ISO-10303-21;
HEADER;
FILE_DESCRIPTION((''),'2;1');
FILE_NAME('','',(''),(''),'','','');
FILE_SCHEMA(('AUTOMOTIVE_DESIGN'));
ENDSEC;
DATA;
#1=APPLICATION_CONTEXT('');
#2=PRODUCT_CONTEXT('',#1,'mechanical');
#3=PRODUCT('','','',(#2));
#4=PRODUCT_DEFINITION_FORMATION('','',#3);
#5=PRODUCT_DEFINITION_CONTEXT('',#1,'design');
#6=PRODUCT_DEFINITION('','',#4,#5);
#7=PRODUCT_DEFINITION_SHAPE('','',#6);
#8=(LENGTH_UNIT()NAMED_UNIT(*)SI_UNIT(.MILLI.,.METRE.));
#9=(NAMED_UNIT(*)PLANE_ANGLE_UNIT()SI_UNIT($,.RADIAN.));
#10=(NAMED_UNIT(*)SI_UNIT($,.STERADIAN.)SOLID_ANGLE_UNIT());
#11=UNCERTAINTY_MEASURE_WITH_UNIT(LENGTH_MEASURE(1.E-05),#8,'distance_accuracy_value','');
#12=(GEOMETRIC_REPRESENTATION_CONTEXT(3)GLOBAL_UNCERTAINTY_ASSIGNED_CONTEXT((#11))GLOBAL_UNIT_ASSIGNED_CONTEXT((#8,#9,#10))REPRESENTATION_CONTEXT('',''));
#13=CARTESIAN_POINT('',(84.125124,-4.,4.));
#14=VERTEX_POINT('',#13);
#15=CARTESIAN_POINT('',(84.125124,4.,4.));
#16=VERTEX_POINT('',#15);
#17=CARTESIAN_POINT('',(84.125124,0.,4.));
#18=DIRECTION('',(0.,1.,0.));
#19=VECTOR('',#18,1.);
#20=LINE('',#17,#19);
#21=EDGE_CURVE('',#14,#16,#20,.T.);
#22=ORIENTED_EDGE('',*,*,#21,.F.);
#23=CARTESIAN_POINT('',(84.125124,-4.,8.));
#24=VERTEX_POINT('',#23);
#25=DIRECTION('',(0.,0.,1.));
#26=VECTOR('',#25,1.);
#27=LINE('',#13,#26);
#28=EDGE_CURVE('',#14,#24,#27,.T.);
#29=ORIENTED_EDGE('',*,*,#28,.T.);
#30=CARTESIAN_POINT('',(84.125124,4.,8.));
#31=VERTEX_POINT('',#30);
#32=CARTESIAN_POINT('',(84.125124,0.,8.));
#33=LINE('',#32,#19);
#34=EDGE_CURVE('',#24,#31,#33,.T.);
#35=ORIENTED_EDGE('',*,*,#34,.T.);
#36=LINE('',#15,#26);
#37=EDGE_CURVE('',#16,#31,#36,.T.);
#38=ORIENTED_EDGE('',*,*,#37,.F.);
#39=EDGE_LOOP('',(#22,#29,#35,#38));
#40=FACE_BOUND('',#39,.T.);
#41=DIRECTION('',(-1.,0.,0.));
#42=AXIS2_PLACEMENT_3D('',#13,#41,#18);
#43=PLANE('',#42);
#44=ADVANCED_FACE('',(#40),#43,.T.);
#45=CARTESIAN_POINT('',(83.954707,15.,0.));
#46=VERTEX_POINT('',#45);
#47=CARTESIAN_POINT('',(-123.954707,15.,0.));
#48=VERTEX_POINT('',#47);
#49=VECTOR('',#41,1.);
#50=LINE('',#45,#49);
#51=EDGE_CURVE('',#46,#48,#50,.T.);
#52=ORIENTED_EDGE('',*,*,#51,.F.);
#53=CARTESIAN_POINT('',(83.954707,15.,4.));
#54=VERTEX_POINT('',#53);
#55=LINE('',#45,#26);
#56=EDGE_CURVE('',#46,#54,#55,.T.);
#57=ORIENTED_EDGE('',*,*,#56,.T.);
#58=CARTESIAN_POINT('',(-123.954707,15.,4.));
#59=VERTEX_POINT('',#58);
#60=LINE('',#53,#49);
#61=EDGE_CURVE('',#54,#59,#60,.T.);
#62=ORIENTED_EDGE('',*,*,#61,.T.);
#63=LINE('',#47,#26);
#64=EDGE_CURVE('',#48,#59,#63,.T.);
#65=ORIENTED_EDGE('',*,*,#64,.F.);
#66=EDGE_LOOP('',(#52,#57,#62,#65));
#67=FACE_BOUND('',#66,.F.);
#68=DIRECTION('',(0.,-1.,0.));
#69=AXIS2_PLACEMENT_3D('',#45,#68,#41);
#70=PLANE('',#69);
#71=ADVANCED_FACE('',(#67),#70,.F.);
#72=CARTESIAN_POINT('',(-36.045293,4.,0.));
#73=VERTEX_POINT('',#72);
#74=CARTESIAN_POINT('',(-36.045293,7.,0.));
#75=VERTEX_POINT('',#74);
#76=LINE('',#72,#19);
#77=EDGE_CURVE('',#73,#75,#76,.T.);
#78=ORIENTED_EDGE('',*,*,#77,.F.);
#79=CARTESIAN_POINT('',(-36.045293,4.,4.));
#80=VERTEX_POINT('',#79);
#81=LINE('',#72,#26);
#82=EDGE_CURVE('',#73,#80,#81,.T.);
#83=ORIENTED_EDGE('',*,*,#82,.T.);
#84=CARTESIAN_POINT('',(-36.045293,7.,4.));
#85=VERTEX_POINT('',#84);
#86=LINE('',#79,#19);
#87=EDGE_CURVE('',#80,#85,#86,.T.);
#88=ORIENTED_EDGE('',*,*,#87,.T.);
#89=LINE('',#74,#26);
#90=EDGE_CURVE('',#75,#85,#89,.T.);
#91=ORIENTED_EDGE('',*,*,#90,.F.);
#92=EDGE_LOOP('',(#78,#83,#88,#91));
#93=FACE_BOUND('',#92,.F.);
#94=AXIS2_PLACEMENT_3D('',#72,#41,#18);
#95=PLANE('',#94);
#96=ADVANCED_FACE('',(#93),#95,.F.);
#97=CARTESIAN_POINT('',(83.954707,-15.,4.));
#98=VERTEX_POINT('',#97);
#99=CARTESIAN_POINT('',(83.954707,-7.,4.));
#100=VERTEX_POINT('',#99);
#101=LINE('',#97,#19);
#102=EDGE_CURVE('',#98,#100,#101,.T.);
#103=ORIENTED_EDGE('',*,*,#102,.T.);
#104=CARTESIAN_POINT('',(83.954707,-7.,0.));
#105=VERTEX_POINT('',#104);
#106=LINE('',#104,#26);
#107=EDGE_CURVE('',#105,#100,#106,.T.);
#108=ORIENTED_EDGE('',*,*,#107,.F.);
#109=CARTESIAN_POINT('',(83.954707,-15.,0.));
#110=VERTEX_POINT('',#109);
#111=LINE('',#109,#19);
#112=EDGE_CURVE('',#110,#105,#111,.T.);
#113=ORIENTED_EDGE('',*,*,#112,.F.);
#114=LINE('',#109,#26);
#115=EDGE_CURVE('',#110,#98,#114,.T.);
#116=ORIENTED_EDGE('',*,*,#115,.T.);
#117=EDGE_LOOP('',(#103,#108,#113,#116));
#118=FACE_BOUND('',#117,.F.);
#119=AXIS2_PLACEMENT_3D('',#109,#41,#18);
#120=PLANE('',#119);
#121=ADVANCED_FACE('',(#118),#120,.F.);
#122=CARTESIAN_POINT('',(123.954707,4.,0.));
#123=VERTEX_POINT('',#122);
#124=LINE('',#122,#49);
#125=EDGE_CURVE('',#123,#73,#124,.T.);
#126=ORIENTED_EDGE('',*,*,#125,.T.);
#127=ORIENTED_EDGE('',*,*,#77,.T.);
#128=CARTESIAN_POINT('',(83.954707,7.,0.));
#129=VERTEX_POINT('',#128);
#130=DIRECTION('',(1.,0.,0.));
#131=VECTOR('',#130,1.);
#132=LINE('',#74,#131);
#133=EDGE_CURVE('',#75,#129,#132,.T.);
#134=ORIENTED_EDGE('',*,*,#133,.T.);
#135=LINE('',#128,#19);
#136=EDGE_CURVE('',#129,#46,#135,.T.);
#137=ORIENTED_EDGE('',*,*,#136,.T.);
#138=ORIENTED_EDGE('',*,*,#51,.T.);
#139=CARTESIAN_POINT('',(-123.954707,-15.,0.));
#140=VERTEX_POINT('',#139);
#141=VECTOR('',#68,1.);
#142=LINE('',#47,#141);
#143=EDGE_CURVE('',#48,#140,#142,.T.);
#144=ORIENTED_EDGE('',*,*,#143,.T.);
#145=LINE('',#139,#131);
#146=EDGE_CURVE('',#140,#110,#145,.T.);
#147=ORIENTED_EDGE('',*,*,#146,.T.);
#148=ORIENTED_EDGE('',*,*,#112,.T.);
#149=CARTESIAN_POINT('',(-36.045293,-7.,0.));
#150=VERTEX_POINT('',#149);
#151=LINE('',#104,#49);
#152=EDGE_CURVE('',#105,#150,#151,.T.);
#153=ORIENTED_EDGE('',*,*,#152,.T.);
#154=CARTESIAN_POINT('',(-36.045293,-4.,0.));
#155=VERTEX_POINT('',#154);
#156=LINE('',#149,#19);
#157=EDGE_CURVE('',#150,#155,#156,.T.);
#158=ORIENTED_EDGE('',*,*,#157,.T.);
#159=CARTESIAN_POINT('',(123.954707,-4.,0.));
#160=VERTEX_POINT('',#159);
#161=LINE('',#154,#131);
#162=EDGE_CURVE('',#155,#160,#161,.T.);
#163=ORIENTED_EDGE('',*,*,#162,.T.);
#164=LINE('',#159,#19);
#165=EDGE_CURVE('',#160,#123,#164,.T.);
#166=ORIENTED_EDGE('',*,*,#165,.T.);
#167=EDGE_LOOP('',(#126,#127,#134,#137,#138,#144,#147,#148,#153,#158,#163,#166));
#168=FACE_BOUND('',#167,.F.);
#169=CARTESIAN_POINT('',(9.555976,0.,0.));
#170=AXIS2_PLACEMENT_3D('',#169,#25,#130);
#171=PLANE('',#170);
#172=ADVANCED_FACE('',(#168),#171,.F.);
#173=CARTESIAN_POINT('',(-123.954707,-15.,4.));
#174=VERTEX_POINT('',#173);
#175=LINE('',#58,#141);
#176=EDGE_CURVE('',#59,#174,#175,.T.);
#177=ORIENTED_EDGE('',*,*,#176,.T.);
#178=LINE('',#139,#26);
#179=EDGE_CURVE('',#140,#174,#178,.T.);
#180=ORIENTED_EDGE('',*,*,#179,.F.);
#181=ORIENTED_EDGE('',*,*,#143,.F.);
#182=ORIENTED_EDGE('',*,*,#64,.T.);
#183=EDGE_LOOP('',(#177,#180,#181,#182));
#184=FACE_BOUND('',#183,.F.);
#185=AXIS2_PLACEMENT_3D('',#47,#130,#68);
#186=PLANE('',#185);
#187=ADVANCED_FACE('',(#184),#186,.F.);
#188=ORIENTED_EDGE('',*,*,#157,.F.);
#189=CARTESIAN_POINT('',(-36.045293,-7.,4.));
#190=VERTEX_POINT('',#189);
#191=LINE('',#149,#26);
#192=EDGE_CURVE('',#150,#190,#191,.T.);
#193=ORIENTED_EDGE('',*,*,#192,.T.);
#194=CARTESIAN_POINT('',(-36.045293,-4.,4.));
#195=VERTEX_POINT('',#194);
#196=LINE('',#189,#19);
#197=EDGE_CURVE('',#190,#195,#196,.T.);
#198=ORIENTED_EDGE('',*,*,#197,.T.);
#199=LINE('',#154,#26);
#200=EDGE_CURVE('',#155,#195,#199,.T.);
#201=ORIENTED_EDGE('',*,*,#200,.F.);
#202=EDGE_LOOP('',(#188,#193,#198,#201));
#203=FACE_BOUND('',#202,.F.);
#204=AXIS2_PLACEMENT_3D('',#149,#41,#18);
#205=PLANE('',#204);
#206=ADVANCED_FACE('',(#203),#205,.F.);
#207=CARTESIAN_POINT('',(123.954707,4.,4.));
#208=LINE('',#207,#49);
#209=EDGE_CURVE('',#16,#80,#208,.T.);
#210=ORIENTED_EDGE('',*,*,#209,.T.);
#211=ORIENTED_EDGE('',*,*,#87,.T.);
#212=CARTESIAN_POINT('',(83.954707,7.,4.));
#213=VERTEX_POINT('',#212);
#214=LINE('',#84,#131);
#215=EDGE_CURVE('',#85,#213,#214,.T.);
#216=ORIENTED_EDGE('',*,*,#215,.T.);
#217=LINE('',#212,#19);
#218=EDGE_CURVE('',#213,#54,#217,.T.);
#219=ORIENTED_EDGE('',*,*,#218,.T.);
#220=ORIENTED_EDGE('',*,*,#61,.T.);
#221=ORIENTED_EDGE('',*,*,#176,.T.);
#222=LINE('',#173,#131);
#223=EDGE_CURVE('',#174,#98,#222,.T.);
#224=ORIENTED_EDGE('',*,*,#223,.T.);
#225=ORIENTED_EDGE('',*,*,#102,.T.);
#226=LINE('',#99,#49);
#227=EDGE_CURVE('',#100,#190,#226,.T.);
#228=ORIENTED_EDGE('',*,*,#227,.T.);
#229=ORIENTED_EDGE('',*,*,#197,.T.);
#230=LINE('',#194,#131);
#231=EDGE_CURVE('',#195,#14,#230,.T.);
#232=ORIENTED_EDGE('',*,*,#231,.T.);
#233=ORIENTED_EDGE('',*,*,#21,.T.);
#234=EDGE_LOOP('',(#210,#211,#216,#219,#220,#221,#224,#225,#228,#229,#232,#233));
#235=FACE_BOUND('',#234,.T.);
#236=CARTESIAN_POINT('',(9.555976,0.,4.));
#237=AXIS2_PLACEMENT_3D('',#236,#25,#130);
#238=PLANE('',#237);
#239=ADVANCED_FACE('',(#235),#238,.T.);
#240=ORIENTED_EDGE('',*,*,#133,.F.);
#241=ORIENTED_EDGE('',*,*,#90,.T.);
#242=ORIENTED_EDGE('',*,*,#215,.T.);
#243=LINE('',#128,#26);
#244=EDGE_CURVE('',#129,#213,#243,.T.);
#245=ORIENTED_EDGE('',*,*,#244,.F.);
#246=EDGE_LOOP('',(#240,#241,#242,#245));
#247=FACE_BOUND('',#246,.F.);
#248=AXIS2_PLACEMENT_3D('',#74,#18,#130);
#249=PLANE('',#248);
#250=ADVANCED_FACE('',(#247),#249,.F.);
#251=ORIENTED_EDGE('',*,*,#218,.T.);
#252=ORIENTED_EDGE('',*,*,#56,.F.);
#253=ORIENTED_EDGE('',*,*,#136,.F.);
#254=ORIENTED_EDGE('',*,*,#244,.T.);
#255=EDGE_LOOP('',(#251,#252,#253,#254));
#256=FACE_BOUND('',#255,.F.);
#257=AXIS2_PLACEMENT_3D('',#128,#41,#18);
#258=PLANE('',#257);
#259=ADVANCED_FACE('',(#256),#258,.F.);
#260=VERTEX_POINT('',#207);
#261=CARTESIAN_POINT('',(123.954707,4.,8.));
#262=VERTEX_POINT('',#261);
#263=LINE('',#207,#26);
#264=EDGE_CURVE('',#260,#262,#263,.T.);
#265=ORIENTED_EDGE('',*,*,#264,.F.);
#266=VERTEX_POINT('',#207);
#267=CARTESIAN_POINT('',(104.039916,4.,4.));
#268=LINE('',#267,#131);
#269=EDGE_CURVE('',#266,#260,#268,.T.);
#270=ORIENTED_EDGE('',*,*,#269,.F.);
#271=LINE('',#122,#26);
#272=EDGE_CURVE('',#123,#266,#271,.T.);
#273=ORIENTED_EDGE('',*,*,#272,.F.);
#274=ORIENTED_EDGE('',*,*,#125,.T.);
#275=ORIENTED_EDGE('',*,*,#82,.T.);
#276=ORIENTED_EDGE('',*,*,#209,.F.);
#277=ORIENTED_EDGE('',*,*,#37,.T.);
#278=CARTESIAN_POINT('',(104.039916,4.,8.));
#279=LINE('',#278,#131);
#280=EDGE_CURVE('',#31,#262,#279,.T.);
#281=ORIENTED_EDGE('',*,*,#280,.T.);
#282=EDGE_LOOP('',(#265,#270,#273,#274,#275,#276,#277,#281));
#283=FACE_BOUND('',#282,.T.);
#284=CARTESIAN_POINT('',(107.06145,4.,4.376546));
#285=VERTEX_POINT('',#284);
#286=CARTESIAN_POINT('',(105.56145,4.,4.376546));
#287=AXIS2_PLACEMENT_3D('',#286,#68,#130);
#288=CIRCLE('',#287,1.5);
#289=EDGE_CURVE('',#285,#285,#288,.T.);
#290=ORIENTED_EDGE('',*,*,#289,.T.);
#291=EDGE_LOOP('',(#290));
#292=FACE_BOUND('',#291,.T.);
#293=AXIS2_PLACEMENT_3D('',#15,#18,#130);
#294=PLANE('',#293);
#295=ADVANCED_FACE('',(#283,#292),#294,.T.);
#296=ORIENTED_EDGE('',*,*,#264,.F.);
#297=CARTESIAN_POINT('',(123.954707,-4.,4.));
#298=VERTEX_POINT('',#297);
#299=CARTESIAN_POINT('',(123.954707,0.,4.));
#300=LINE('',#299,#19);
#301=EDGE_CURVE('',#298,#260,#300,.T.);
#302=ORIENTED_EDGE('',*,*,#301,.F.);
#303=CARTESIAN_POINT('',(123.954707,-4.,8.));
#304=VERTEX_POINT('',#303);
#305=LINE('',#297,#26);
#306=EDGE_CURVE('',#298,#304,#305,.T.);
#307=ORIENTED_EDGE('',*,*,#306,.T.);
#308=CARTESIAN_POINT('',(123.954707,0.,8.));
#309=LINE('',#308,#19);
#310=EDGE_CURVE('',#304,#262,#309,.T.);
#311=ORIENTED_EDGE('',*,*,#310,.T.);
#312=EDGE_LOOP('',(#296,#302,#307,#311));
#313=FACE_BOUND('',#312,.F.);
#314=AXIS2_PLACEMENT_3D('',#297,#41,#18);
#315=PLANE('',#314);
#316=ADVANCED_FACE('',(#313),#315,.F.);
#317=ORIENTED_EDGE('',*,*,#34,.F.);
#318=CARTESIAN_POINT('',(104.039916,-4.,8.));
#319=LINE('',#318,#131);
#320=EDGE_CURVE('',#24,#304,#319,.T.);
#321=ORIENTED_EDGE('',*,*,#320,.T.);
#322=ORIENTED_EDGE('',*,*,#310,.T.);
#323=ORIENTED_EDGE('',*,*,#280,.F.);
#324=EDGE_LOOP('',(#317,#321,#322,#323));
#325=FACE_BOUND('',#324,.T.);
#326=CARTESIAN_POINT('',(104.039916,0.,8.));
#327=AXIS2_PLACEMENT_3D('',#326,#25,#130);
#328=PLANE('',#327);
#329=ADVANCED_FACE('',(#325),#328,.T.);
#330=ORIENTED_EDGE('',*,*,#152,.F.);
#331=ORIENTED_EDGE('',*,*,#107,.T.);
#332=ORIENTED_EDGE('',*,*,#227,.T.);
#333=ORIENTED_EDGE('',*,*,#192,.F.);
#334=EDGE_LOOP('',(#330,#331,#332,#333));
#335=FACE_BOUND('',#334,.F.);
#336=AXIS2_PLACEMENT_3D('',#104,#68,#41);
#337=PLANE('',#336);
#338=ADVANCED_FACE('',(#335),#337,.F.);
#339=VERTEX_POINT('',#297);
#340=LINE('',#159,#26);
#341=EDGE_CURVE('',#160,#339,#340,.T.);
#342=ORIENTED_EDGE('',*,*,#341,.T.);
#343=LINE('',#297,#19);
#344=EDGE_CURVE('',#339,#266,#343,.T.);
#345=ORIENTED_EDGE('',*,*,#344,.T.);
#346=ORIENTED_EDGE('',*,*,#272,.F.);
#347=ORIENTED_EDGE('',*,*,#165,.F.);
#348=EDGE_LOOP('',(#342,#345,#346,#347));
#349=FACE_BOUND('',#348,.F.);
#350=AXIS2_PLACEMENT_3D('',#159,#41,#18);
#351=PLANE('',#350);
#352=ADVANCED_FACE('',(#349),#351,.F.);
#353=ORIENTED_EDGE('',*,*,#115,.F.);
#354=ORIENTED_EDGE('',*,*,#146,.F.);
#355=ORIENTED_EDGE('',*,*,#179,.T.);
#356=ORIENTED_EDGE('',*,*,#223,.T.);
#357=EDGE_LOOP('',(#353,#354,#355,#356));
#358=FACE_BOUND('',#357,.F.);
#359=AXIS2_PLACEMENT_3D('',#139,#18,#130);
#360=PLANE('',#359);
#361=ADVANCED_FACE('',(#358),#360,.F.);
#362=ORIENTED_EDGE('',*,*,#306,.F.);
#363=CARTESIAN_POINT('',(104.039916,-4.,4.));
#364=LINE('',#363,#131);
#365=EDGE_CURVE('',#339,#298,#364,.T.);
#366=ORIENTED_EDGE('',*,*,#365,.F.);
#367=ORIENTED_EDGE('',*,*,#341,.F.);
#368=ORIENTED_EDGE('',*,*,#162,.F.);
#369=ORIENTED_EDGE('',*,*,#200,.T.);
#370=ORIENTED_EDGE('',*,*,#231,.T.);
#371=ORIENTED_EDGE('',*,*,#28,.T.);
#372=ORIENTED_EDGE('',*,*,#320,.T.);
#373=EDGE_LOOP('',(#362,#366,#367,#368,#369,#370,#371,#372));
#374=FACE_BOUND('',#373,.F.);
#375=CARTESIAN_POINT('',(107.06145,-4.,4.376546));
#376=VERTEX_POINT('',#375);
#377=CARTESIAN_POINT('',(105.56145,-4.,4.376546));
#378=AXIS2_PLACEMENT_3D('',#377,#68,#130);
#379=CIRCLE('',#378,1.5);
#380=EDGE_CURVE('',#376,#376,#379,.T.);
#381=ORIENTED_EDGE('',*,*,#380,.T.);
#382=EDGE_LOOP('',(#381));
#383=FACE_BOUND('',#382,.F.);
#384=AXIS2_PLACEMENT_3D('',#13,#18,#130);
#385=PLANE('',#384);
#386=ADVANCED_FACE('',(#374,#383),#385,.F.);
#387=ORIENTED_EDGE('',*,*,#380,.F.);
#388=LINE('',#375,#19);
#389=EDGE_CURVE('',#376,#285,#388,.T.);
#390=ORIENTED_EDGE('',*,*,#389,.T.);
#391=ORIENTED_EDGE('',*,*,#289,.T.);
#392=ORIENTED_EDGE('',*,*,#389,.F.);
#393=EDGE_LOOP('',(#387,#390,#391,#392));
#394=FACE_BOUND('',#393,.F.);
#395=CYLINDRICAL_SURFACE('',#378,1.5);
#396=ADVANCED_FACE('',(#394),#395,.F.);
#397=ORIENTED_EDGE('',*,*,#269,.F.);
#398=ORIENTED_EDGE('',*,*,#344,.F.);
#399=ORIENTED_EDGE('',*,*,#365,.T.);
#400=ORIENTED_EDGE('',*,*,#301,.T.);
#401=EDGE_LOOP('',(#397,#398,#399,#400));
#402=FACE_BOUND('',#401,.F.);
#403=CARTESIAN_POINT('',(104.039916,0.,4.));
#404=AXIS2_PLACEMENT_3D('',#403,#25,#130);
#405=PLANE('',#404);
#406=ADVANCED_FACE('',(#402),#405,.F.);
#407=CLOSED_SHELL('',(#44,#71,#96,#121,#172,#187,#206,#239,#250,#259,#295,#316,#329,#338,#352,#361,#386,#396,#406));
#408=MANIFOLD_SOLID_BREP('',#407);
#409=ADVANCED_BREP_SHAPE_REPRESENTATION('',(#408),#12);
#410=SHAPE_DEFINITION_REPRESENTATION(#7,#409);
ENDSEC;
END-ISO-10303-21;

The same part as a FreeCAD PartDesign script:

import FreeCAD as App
import Part
import Sketcher
from FreeCAD import Vector
Q = App.Units.Quantity


def add_polygon(sketch, points):
    """Adds a closed chain of lines whose ends are joined by coincident constraints."""
    first, n = sketch.GeometryCount, len(points)
    for a, b in zip(points, points[1:] + points[:1]):
        sketch.addGeometry(Part.LineSegment(App.Vector(*a, 0), App.Vector(*b, 0)), False)
    for i in range(n):
        sketch.addConstraint(Sketcher.Constraint("Coincident", first + i, 2, first + (i + 1) % n, 1))

doc = App.newDocument("Part")
params = doc.addObject("Spreadsheet::Sheet", "Params")
for row, (alias, value) in enumerate([
    ("sketch1_width", "120 mm"),
    ("sketch1_width2", "160 mm"),
    ("sketch1_height", "8 mm"),
    ("sketch1_height2", "3 mm"),
    ("pad1_length", "4 mm"),
    ("sketch2_height", "8 mm"),
    ("pad2_length", "4 mm"),
    ("sketch3_diameter", "3 mm"),
    ("pocket1_length", "25 mm"),
], start=1):
    params.set(f"A{row}", alias)
    params.set(f"B{row}", "=" + value)
    params.setAlias(f"B{row}", alias)

body = doc.addObject("PartDesign::Body", "Body")

# Sketch on XY plane
sketch1 = body.newObject("Sketcher::SketchObject", "Sketch")
sketch1.AttachmentSupport = (doc.getObject("XY_Plane"), [""])
sketch1.MapMode = "FlatFace"
add_polygon(sketch1, [(-124, -15), (84, -15), (84, -7), (-36, -7), (-36, -4), (124, -4), (124, 4), (-36, 4), (-36, 7), (84, 7), (84, 15), (-124, 15)])  # lines 0-11
sketch1.addConstraint([
    Sketcher.Constraint("Horizontal", 0),
    Sketcher.Constraint("Vertical", 1),
    Sketcher.Constraint("Horizontal", 2),
    Sketcher.Constraint("Vertical", 3),
    Sketcher.Constraint("Horizontal", 4),
    Sketcher.Constraint("Vertical", 5),
    Sketcher.Constraint("Horizontal", 6),
    Sketcher.Constraint("Vertical", 7),
    Sketcher.Constraint("Horizontal", 8),
    Sketcher.Constraint("Vertical", 9),
    Sketcher.Constraint("Horizontal", 10),
    Sketcher.Constraint("Vertical", 11),
    Sketcher.Constraint("Symmetric", 3, 2, 6, 2, -1),
    Sketcher.Constraint("Symmetric", 1, 2, 8, 2, -1),
    Sketcher.Constraint("Equal", 1, 5),
    Sketcher.Constraint("Equal", 5, 9),
    Sketcher.Constraint("DistanceX", 2, 2, 2, 1, Q("120 mm")),
    Sketcher.Constraint("DistanceX", 4, 1, 4, 2, Q("160 mm")),
    Sketcher.Constraint("DistanceY", 1, 1, 1, 2, Q("8 mm")),
    Sketcher.Constraint("DistanceY", 3, 1, 3, 2, Q("3 mm")),
    Sketcher.Constraint("DistanceX", 0, 1, 0, 2, Q("207.909414 mm")),
    Sketcher.Constraint("DistanceX", -1, 1, 0, 2, Q("83.954707 mm")),
])
sketch1.setExpression("Constraints[28]", "Params.sketch1_width")
sketch1.setExpression("Constraints[29]", "Params.sketch1_width2")
sketch1.setExpression("Constraints[30]", "Params.sketch1_height")
sketch1.setExpression("Constraints[31]", "Params.sketch1_height2")
pad1 = body.newObject("PartDesign::Pad", "Pad")
pad1.Profile = sketch1
pad1.setExpression("Length", "Params.pad1_length")

# Sketch on XY plane
sketch2 = body.newObject("Sketcher::SketchObject", "Sketch001")
sketch2.AttachmentSupport = (doc.getObject("XY_Plane"), [""])
sketch2.MapMode = "FlatFace"
sketch2.AttachmentOffset = App.Placement(Vector(0, 0, 4), App.Rotation())
add_polygon(sketch2, [(84, 4), (84, -4), (124, -4), (124, 4)])  # lines 0-3
sketch2.addConstraint([
    Sketcher.Constraint("Vertical", 0),
    Sketcher.Constraint("Horizontal", 1),
    Sketcher.Constraint("Vertical", 2),
    Sketcher.Constraint("Horizontal", 3),
    Sketcher.Constraint("DistanceY", 0, 2, 0, 1, Q("8 mm")),
    Sketcher.Constraint("DistanceY", 0, 2, -1, 1, Q("4 mm")),
    Sketcher.Constraint("DistanceX", 1, 1, 1, 2, Q("39.829583 mm")),
    Sketcher.Constraint("DistanceX", -1, 1, 0, 2, Q("84.125124 mm")),
])
sketch2.setExpression("Constraints[8]", "Params.sketch2_height")
pad2 = body.newObject("PartDesign::Pad", "Pad001")
pad2.Profile = sketch2
pad2.setExpression("Length", "Params.pad2_length")

# Sketch on XZ plane
sketch3 = body.newObject("Sketcher::SketchObject", "Sketch002")
sketch3.AttachmentSupport = (doc.getObject("XZ_Plane"), [""])
sketch3.MapMode = "FlatFace"
sketch3.AttachmentOffset = App.Placement(Vector(0, 0, 4), App.Rotation())
sketch3.addGeometry(Part.Circle(Vector(105.6, 4.4, 0), Vector(0, 0, 1), 1.5), False)
sketch3.addConstraint([
    Sketcher.Constraint("Diameter", 0, Q("3 mm")),
    Sketcher.Constraint("DistanceX", -1, 1, 0, 3, Q("105.56145 mm")),
    Sketcher.Constraint("DistanceY", -1, 1, 0, 3, Q("4.376546 mm")),
])
sketch3.setExpression("Constraints[0]", "Params.sketch3_diameter")
pocket1 = body.newObject("PartDesign::Pocket", "Pocket")
pocket1.Profile = sketch3
pocket1.setExpression("Length", "Params.pocket1_length")

doc.recompute()
